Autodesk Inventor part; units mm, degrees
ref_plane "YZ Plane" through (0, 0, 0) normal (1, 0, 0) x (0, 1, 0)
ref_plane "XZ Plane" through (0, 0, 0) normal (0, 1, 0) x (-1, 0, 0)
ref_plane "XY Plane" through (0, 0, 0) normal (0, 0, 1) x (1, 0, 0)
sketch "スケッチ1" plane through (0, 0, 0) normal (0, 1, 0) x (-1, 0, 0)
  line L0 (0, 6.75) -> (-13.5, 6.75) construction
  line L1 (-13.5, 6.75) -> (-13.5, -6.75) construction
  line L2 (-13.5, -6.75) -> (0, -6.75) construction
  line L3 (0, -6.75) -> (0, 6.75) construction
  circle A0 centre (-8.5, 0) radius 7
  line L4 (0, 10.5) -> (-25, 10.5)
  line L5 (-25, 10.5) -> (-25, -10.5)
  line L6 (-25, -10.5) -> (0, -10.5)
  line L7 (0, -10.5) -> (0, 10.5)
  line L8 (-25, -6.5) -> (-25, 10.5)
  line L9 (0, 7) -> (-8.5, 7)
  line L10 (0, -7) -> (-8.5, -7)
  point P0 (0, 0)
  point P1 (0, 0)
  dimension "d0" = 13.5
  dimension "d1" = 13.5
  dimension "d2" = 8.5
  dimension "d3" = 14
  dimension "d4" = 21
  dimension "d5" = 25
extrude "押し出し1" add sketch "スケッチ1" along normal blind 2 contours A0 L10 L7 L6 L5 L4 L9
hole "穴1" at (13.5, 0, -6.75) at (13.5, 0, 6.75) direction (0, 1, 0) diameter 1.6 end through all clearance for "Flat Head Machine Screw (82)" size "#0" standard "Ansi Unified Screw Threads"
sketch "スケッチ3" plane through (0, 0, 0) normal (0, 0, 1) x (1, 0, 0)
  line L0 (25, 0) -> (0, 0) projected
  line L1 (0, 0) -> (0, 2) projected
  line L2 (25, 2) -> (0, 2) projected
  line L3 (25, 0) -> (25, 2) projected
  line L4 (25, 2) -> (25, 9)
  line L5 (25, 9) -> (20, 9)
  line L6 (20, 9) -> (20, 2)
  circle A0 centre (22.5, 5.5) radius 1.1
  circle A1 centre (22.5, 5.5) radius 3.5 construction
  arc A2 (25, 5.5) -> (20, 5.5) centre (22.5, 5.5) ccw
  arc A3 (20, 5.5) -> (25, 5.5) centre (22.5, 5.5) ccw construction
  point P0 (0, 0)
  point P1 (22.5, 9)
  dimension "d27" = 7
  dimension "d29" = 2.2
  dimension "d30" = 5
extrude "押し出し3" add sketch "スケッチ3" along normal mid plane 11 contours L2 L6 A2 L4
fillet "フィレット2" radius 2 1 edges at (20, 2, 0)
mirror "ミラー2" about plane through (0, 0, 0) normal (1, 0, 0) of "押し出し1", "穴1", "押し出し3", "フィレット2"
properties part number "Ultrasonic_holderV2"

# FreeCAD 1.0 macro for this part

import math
import FreeCAD as App
import Part
import Sketcher
from FreeCAD import Vector


def edges_at(feature, points):
    """Names of the edges that pass closest to the given points."""
    edges = feature.Shape.Edges
    near = lambda p: min(range(len(edges)), key=lambda i: edges[i].distToShape(Part.Vertex(*p))[0])
    return sorted({f"Edge{near(p) + 1}" for p in points})

doc = App.newDocument("Part")
body = doc.addObject("PartDesign::Body", "Body")

# Sketch on XZ plane
sketch1 = body.newObject("Sketcher::SketchObject", "Sketch")
sketch1.AttachmentSupport = (doc.getObject("XZ_Plane"), [""])
sketch1.MapMode = "FlatFace"
sketch1.addGeometry(Part.ArcOfCircle(Part.Circle(Vector(8.5, 0, 0), Vector(0, 0, 1), 7), math.radians(-90), math.radians(90)), False)
sketch1.addGeometry(Part.LineSegment(Vector(8.5, 7, 0), Vector(0, 7, 0)), False)
sketch1.addGeometry(Part.LineSegment(Vector(0, 7, 0), Vector(0, 10.5, 0)), False)
sketch1.addGeometry(Part.LineSegment(Vector(0, 10.5, 0), Vector(25, 10.5, 0)), False)
sketch1.addGeometry(Part.LineSegment(Vector(25, 10.5, 0), Vector(25, -10.5, 0)), False)
sketch1.addGeometry(Part.LineSegment(Vector(25, -10.5, 0), Vector(0, -10.5, 0)), False)
sketch1.addGeometry(Part.LineSegment(Vector(0, -10.5, 0), Vector(0, -7, 0)), False)
sketch1.addGeometry(Part.LineSegment(Vector(0, -7, 0), Vector(8.5, -7, 0)), False)
sketch1.addConstraint(Sketcher.Constraint("Tangent", 0, 2, 1, 1))
sketch1.addConstraint(Sketcher.Constraint("Coincident", 1, 2, 2, 1))
sketch1.addConstraint(Sketcher.Constraint("Coincident", 2, 2, 3, 1))
sketch1.addConstraint(Sketcher.Constraint("Coincident", 3, 2, 4, 1))
sketch1.addConstraint(Sketcher.Constraint("Coincident", 4, 2, 5, 1))
sketch1.addConstraint(Sketcher.Constraint("Coincident", 5, 2, 6, 1))
sketch1.addConstraint(Sketcher.Constraint("Coincident", 6, 2, 7, 1))
sketch1.addConstraint(Sketcher.Constraint("Tangent", 7, 2, 0, 1))
sketch1.addConstraint(Sketcher.Constraint("Horizontal", 1))
sketch1.addConstraint(Sketcher.Constraint("Vertical", 2))
sketch1.addConstraint(Sketcher.Constraint("Horizontal", 3))
sketch1.addConstraint(Sketcher.Constraint("Vertical", 4))
sketch1.addConstraint(Sketcher.Constraint("Horizontal", 5))
sketch1.addConstraint(Sketcher.Constraint("Vertical", 6))
sketch1.addConstraint(Sketcher.Constraint("Horizontal", 7))
sketch1.addConstraint(Sketcher.Constraint("Symmetric", 2, 2, 5, 2, -1, 1))
sketch1.addConstraint(Sketcher.Constraint("Symmetric", 1, 2, 6, 2, -1))
sketch1.addConstraint(Sketcher.Constraint("Radius", 0, 7.0))
sketch1.addConstraint(Sketcher.Constraint("DistanceX", 3, 1, 3, 2, 25.0))
sketch1.addConstraint(Sketcher.Constraint("DistanceY", 4, 2, 4, 1, 21.0))
sketch1.addConstraint(Sketcher.Constraint("DistanceX", 1, 2, 1, 1, 8.5))
pad1 = body.newObject("PartDesign::Pad", "Pad")
pad1.Profile = sketch1
pad1.Length = 2
pad1.Reversed = True

# Sketch on XZ plane
sketch2 = body.newObject("Sketcher::SketchObject", "Sketch001")
sketch2.AttachmentSupport = (doc.getObject("XZ_Plane"), [""])
sketch2.MapMode = "FlatFace"
sketch2.addGeometry(Part.Circle(Vector(13.5, -6.8, 0), Vector(0, 0, 1), 0.8), False)
sketch2.addGeometry(Part.Circle(Vector(13.5, 6.8, 0), Vector(0, 0, 1), 0.8), False)
sketch2.addConstraint(Sketcher.Constraint("Equal", 0, 1))
sketch2.addConstraint(Sketcher.Constraint("Symmetric", 0, 3, 1, 3, -1))
sketch2.addConstraint(Sketcher.Constraint("Diameter", 0, 1.6))
sketch2.addConstraint(Sketcher.Constraint("DistanceX", -1, 1, 0, 3, 13.5))
sketch2.addConstraint(Sketcher.Constraint("DistanceY", 0, 3, 1, 3, 13.5))
doc.recompute()
hole = body.newObject("PartDesign::Hole", "Hole")
hole.Profile = sketch2
hole.ThreadType = "None"
hole.Diameter = 1.6
hole.DepthType = "ThroughAll"

# Sketch on XY plane
sketch3 = body.newObject("Sketcher::SketchObject", "Sketch002")
sketch3.AttachmentSupport = (doc.getObject("XY_Plane"), [""])
sketch3.MapMode = "FlatFace"
sketch3.addGeometry(Part.LineSegment(Vector(20, 2, 0), Vector(25, 2, 0)), False)
sketch3.addGeometry(Part.LineSegment(Vector(25, 2, 0), Vector(25, 5.5, 0)), False)
sketch3.addGeometry(Part.ArcOfCircle(Part.Circle(Vector(22.5, 5.5, 0), Vector(0, 0, 1), 2.5), math.radians(0), math.radians(180)), False)
sketch3.addGeometry(Part.LineSegment(Vector(20, 5.5, 0), Vector(20, 2, 0)), False)
sketch3.addGeometry(Part.Circle(Vector(22.5, 5.5, 0), Vector(0, 0, 1), 1.1), False)
sketch3.addConstraint(Sketcher.Constraint("Coincident", 0, 2, 1, 1))
sketch3.addConstraint(Sketcher.Constraint("Tangent", 1, 2, 2, 1))
sketch3.addConstraint(Sketcher.Constraint("Tangent", 2, 2, 3, 1))
sketch3.addConstraint(Sketcher.Constraint("Coincident", 3, 2, 0, 1))
sketch3.addConstraint(Sketcher.Constraint("Horizontal", 0))
sketch3.addConstraint(Sketcher.Constraint("Vertical", 1))
sketch3.addConstraint(Sketcher.Constraint("Vertical", 3))
sketch3.addConstraint(Sketcher.Constraint("Coincident", 4, 3, 2, 3))
sketch3.addConstraint(Sketcher.Constraint("Diameter", 4, 2.2))
sketch3.addConstraint(Sketcher.Constraint("Radius", 2, 2.5))
sketch3.addConstraint(Sketcher.Constraint("DistanceY", 1, 1, 1, 2, 3.5))
sketch3.addConstraint(Sketcher.Constraint("DistanceX", -1, 1, 0, 2, 25.0))
sketch3.addConstraint(Sketcher.Constraint("DistanceY", -1, 1, 0, 2, 2.0))
pad2 = body.newObject("PartDesign::Pad", "Pad001")
pad2.Profile = sketch3
pad2.Length = 11
pad2.Midplane = True
doc.recompute()

fillet = body.newObject("PartDesign::Fillet", "Fillet")
fillet.Base = (pad2, edges_at(pad2, [(20, 2, 0)]))
fillet.Radius = 2
doc.recompute()

mirrored = body.newObject("PartDesign::Mirrored", "Mirrored")
mirrored.Originals = [pad1, hole, pad2, fillet]
mirrored.MirrorPlane = (doc.getObject("YZ_Plane"), [""])
body.Tip = mirrored

doc.recompute()
